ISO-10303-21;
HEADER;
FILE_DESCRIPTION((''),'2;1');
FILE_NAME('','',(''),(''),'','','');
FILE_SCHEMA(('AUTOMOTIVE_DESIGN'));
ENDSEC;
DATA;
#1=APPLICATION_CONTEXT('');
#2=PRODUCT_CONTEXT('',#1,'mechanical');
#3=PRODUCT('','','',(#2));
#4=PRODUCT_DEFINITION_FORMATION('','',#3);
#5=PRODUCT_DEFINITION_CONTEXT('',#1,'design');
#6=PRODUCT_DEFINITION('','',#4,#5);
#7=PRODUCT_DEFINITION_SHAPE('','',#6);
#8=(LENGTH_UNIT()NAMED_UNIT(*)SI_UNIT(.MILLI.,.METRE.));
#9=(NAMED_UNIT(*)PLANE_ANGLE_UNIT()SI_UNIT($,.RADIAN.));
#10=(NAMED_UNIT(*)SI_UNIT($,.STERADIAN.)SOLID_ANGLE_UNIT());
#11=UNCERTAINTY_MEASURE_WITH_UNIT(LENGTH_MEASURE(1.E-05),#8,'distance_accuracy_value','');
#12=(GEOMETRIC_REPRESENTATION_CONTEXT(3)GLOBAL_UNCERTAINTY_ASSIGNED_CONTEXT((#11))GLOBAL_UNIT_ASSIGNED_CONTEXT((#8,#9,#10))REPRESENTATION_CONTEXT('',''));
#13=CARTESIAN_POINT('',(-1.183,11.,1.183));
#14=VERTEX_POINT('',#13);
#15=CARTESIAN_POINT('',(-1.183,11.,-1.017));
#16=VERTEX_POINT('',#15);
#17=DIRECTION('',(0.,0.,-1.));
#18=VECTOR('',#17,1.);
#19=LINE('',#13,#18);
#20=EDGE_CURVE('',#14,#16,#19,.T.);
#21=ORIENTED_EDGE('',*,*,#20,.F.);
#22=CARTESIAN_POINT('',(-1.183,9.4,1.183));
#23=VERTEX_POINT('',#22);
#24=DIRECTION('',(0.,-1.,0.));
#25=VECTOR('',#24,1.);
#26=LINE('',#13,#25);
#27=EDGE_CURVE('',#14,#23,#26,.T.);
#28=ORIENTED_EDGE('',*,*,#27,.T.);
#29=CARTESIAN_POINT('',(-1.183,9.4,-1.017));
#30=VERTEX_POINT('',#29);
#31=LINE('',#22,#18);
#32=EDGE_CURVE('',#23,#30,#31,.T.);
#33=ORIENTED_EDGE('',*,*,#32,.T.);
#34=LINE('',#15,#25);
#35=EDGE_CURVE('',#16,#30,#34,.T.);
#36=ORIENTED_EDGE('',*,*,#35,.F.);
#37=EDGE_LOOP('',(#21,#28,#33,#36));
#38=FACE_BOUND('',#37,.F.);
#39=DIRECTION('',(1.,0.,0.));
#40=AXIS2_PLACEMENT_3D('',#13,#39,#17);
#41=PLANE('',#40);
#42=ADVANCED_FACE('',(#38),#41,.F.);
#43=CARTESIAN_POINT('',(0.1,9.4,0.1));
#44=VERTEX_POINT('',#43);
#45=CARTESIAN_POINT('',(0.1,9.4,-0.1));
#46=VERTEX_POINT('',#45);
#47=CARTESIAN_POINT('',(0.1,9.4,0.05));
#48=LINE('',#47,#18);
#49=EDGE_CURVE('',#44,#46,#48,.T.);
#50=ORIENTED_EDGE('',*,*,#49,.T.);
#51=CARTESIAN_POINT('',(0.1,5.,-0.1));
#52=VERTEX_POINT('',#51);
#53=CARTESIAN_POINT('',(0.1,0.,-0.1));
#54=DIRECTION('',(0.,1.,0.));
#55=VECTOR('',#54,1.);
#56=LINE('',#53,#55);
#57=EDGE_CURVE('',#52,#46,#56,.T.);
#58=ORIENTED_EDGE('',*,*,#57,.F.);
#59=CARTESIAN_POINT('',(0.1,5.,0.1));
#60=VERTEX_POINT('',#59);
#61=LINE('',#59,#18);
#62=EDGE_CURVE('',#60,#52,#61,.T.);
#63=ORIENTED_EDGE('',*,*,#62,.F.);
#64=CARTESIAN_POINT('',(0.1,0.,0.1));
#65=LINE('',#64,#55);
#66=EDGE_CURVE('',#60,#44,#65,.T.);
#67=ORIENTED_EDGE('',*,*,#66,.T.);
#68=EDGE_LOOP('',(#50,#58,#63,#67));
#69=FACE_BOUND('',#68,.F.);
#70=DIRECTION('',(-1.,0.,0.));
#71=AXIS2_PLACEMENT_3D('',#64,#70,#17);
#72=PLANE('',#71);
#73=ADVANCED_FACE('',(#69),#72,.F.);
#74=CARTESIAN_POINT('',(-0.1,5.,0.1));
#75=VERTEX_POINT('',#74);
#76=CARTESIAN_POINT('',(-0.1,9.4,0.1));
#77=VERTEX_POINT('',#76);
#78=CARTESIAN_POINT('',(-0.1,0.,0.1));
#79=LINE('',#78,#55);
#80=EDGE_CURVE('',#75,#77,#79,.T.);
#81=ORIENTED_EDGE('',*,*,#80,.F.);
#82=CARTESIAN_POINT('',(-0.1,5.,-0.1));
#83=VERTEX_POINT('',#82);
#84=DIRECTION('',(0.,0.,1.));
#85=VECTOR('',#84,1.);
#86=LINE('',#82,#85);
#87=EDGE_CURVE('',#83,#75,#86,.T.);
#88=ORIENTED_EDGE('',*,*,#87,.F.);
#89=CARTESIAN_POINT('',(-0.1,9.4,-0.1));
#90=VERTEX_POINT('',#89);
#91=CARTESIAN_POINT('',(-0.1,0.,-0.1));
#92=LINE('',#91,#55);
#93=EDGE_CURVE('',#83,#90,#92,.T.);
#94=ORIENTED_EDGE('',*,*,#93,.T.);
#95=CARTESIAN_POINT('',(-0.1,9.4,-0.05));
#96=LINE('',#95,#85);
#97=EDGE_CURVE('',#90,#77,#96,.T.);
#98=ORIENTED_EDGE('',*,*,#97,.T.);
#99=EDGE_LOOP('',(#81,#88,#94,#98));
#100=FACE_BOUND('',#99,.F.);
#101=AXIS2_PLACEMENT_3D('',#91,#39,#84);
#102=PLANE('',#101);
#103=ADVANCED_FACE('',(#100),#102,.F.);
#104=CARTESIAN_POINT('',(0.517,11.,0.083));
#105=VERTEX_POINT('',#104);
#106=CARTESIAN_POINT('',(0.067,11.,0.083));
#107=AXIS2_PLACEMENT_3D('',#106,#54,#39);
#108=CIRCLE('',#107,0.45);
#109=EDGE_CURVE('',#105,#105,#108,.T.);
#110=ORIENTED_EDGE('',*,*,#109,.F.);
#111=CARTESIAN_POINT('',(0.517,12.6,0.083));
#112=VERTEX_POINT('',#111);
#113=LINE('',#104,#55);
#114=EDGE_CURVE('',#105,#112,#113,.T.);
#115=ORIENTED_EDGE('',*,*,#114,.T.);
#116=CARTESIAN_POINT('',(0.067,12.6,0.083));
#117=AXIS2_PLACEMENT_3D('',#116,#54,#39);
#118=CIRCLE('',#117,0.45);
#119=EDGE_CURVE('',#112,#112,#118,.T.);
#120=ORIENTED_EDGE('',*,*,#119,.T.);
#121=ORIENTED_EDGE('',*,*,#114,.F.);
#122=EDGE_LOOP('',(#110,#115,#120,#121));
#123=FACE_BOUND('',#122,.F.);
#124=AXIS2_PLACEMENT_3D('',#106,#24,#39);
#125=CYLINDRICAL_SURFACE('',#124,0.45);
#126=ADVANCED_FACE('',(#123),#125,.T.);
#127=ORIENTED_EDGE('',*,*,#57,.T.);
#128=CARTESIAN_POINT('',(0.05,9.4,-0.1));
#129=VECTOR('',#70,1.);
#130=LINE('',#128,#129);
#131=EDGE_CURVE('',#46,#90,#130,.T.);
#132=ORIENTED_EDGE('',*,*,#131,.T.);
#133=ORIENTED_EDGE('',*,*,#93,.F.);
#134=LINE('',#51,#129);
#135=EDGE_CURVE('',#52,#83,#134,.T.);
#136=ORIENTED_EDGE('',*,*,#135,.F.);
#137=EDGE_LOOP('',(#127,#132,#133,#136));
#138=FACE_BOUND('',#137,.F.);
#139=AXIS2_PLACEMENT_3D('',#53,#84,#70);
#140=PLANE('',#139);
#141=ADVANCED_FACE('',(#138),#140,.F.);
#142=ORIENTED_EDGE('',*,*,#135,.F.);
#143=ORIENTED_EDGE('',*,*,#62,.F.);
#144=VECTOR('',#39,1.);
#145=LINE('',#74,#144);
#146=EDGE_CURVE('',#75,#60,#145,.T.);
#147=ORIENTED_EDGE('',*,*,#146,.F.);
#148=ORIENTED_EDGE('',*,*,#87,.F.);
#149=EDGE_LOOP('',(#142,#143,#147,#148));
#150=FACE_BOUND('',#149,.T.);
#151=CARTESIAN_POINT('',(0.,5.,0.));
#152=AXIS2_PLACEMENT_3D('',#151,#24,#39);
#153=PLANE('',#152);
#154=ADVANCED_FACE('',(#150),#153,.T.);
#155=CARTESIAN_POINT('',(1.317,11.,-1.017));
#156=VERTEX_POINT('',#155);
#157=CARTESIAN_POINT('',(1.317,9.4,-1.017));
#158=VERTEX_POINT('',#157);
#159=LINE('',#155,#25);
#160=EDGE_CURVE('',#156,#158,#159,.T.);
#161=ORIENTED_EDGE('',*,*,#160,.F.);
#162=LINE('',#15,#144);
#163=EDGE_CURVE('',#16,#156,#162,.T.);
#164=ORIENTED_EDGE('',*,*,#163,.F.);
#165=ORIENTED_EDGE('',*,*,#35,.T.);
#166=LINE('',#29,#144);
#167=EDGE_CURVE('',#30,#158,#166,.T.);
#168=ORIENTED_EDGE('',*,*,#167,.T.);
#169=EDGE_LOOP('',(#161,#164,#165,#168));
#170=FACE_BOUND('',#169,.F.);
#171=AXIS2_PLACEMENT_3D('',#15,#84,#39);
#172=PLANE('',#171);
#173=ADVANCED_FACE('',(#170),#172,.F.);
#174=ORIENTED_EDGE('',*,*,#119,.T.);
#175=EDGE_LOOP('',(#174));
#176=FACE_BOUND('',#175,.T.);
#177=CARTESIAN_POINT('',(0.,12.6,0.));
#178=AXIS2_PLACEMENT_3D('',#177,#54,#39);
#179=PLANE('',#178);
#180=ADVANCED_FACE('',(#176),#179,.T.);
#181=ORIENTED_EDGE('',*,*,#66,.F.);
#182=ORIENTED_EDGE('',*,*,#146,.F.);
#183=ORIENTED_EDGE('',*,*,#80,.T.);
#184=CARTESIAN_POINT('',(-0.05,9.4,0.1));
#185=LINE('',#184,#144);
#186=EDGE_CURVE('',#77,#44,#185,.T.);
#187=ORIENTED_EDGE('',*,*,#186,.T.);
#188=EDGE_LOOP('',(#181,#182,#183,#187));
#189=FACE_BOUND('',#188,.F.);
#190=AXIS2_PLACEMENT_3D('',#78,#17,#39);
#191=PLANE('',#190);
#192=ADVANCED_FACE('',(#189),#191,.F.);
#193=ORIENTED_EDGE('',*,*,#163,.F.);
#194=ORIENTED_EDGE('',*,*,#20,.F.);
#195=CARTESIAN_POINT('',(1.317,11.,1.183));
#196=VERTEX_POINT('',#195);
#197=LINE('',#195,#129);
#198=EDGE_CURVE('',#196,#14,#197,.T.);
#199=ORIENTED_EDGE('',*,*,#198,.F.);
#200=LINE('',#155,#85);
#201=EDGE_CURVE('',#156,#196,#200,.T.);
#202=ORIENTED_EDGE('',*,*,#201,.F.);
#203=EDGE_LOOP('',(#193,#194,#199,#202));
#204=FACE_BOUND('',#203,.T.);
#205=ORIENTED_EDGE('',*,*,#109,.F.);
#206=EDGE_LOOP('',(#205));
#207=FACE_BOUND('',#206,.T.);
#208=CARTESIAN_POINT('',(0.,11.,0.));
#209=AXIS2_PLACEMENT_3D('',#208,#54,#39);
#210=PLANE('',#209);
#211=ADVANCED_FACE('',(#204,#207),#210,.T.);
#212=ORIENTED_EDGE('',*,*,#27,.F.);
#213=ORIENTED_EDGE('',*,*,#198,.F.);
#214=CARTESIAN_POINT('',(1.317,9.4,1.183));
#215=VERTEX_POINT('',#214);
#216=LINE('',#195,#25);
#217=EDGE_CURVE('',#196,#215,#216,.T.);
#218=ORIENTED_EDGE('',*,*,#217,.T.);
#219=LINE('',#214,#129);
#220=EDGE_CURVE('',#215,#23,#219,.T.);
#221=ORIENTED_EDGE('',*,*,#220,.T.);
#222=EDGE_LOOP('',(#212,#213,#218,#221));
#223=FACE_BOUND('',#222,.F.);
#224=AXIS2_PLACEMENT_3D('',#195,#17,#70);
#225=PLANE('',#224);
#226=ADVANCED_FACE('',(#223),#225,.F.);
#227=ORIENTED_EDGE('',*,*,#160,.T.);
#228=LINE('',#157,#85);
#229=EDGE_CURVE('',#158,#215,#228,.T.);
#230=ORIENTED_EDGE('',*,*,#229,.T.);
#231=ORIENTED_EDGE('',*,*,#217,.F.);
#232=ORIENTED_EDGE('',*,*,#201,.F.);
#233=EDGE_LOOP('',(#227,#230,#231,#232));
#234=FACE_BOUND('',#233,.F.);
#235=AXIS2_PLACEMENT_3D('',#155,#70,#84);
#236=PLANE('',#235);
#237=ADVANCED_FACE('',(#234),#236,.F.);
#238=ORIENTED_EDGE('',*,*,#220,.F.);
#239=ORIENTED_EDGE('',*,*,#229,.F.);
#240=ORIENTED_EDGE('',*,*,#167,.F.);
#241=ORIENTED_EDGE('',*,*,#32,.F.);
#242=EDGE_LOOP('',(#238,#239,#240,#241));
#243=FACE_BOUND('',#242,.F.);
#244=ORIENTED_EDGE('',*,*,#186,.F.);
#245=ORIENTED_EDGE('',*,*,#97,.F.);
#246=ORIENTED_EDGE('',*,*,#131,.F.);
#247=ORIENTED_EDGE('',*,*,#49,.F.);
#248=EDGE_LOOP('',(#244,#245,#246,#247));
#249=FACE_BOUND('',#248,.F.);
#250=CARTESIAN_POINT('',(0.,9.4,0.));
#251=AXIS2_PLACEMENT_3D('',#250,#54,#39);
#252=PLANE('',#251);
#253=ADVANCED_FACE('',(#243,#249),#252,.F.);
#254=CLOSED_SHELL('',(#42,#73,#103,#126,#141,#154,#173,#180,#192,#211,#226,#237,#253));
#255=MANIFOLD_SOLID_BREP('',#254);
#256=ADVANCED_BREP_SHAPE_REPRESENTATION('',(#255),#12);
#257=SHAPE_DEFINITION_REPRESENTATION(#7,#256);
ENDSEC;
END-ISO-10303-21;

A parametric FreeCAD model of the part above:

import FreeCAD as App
import Part
import Sketcher
from FreeCAD import Vector
Q = App.Units.Quantity

doc = App.newDocument("Part")
body = doc.addObject("PartDesign::Body", "Body")

# Sketch on XZ plane
sketch1 = body.newObject("Sketcher::SketchObject", "Sketch")
sketch1.AttachmentSupport = (doc.getObject("XZ_Plane"), [""])
sketch1.MapMode = "FlatFace"
sketch1.addGeometry([
    Part.LineSegment(Vector(-0.1, -0.1, 0), Vector(-0.1, 0.1, 0)),
    Part.LineSegment(Vector(-0.1, 0.1, 0), Vector(0.1, 0.1, 0)),
    Part.LineSegment(Vector(0.1, 0.1, 0), Vector(0.1, -0.1, 0)),
    Part.LineSegment(Vector(0.1, -0.1, 0), Vector(-0.1, -0.1, 0)),
], False)
sketch1.addConstraint([
    Sketcher.Constraint("Coincident", 0, 2, 1, 1),
    Sketcher.Constraint("Coincident", 1, 2, 2, 1),
    Sketcher.Constraint("Coincident", 2, 2, 3, 1),
    Sketcher.Constraint("Coincident", 3, 2, 0, 1),
    Sketcher.Constraint("Vertical", 0),
    Sketcher.Constraint("Horizontal", 1),
    Sketcher.Constraint("Vertical", 2),
    Sketcher.Constraint("Horizontal", 3),
    Sketcher.Constraint("Symmetric", 0, 2, 2, 2, -1, 1),
    Sketcher.Constraint("Equal", 3, 0),
    Sketcher.Constraint("DistanceX", 1, 1, 1, 2, Q("0.2 mm")),
])
pad1 = body.newObject("PartDesign::Pad", "Pad")
pad1.Profile = sketch1
pad1.Length = 11
pad1.Reversed = True

# Sketch on XZ plane
sketch2 = body.newObject("Sketcher::SketchObject", "Sketch001")
sketch2.AttachmentSupport = (doc.getObject("XZ_Plane"), [""])
sketch2.MapMode = "FlatFace"
sketch2.AttachmentOffset = App.Placement(Vector(0, 0, -11), App.Rotation())
sketch2.addGeometry([
    Part.LineSegment(Vector(1.3, -1, 0), Vector(-1.2, -1, 0)),
    Part.LineSegment(Vector(-1.2, -1, 0), Vector(-1.2, 1.2, 0)),
    Part.LineSegment(Vector(-1.2, 1.2, 0), Vector(1.3, 1.2, 0)),
    Part.LineSegment(Vector(1.3, 1.2, 0), Vector(1.3, -1, 0)),
], False)
sketch2.addConstraint([
    Sketcher.Constraint("Coincident", 0, 2, 1, 1),
    Sketcher.Constraint("Coincident", 1, 2, 2, 1),
    Sketcher.Constraint("Coincident", 2, 2, 3, 1),
    Sketcher.Constraint("Coincident", 3, 2, 0, 1),
    Sketcher.Constraint("Horizontal", 0),
    Sketcher.Constraint("Vertical", 1),
    Sketcher.Constraint("Horizontal", 2),
    Sketcher.Constraint("Vertical", 3),
    Sketcher.Constraint("DistanceX", 0, 2, 0, 1, Q("2.5 mm")),
    Sketcher.Constraint("DistanceY", 1, 1, 1, 2, Q("2.2 mm")),
    Sketcher.Constraint("DistanceX", 0, 2, -1, 1, Q("1.183 mm")),
    Sketcher.Constraint("DistanceY", 0, 2, -1, 1, Q("1.017 mm")),
])
pad2 = body.newObject("PartDesign::Pad", "Pad001")
pad2.Profile = sketch2
pad2.Length = 1.6

# Sketch on XZ plane
sketch3 = body.newObject("Sketcher::SketchObject", "Sketch002")
sketch3.AttachmentSupport = (doc.getObject("XZ_Plane"), [""])
sketch3.MapMode = "FlatFace"
sketch3.AttachmentOffset = App.Placement(Vector(0, 0, -11), App.Rotation())
sketch3.addGeometry(Part.Circle(Vector(0.07, 0.08, 0), Vector(0, 0, 1), 0.45), False)
sketch3.addConstraint([
    Sketcher.Constraint("Diameter", 0, Q("0.9 mm")),
    Sketcher.Constraint("DistanceX", -1, 1, 0, 3, Q("0.067 mm")),
    Sketcher.Constraint("DistanceY", -1, 1, 0, 3, Q("0.083 mm")),
])
pad3 = body.newObject("PartDesign::Pad", "Pad002")
pad3.Profile = sketch3
pad3.Length = 1.6
pad3.Reversed = True

# Sketch on XZ plane
sketch4 = body.newObject("Sketcher::SketchObject", "Sketch003")
sketch4.AttachmentSupport = (doc.getObject("XZ_Plane"), [""])
sketch4.MapMode = "FlatFace"
sketch4.addGeometry([
    Part.LineSegment(Vector(0.1, -0.1, 0), Vector(0.1, 0.1, 0)),
    Part.LineSegment(Vector(0.1, 0.1, 0), Vector(-0.1, 0.1, 0)),
    Part.LineSegment(Vector(-0.1, 0.1, 0), Vector(-0.1, -0.1, 0)),
    Part.LineSegment(Vector(-0.1, -0.1, 0), Vector(0.1, -0.1, 0)),
], False)
sketch4.addConstraint([
    Sketcher.Constraint("Coincident", 0, 2, 1, 1),
    Sketcher.Constraint("Coincident", 1, 2, 2, 1),
    Sketcher.Constraint("Coincident", 2, 2, 3, 1),
    Sketcher.Constraint("Coincident", 3, 2, 0, 1),
    Sketcher.Constraint("Vertical", 0),
    Sketcher.Constraint("Horizontal", 1),
    Sketcher.Constraint("Vertical", 2),
    Sketcher.Constraint("Horizontal", 3),
    Sketcher.Constraint("Symmetric", 0, 2, 2, 2, -1, 1),
    Sketcher.Constraint("Equal", 3, 0),
    Sketcher.Constraint("DistanceX", 1, 2, 1, 1, Q("0.2 mm")),
])
pocket1 = body.newObject("PartDesign::Pocket", "Pocket")
pocket1.Profile = sketch4
pocket1.Length = 5

doc.recompute()
